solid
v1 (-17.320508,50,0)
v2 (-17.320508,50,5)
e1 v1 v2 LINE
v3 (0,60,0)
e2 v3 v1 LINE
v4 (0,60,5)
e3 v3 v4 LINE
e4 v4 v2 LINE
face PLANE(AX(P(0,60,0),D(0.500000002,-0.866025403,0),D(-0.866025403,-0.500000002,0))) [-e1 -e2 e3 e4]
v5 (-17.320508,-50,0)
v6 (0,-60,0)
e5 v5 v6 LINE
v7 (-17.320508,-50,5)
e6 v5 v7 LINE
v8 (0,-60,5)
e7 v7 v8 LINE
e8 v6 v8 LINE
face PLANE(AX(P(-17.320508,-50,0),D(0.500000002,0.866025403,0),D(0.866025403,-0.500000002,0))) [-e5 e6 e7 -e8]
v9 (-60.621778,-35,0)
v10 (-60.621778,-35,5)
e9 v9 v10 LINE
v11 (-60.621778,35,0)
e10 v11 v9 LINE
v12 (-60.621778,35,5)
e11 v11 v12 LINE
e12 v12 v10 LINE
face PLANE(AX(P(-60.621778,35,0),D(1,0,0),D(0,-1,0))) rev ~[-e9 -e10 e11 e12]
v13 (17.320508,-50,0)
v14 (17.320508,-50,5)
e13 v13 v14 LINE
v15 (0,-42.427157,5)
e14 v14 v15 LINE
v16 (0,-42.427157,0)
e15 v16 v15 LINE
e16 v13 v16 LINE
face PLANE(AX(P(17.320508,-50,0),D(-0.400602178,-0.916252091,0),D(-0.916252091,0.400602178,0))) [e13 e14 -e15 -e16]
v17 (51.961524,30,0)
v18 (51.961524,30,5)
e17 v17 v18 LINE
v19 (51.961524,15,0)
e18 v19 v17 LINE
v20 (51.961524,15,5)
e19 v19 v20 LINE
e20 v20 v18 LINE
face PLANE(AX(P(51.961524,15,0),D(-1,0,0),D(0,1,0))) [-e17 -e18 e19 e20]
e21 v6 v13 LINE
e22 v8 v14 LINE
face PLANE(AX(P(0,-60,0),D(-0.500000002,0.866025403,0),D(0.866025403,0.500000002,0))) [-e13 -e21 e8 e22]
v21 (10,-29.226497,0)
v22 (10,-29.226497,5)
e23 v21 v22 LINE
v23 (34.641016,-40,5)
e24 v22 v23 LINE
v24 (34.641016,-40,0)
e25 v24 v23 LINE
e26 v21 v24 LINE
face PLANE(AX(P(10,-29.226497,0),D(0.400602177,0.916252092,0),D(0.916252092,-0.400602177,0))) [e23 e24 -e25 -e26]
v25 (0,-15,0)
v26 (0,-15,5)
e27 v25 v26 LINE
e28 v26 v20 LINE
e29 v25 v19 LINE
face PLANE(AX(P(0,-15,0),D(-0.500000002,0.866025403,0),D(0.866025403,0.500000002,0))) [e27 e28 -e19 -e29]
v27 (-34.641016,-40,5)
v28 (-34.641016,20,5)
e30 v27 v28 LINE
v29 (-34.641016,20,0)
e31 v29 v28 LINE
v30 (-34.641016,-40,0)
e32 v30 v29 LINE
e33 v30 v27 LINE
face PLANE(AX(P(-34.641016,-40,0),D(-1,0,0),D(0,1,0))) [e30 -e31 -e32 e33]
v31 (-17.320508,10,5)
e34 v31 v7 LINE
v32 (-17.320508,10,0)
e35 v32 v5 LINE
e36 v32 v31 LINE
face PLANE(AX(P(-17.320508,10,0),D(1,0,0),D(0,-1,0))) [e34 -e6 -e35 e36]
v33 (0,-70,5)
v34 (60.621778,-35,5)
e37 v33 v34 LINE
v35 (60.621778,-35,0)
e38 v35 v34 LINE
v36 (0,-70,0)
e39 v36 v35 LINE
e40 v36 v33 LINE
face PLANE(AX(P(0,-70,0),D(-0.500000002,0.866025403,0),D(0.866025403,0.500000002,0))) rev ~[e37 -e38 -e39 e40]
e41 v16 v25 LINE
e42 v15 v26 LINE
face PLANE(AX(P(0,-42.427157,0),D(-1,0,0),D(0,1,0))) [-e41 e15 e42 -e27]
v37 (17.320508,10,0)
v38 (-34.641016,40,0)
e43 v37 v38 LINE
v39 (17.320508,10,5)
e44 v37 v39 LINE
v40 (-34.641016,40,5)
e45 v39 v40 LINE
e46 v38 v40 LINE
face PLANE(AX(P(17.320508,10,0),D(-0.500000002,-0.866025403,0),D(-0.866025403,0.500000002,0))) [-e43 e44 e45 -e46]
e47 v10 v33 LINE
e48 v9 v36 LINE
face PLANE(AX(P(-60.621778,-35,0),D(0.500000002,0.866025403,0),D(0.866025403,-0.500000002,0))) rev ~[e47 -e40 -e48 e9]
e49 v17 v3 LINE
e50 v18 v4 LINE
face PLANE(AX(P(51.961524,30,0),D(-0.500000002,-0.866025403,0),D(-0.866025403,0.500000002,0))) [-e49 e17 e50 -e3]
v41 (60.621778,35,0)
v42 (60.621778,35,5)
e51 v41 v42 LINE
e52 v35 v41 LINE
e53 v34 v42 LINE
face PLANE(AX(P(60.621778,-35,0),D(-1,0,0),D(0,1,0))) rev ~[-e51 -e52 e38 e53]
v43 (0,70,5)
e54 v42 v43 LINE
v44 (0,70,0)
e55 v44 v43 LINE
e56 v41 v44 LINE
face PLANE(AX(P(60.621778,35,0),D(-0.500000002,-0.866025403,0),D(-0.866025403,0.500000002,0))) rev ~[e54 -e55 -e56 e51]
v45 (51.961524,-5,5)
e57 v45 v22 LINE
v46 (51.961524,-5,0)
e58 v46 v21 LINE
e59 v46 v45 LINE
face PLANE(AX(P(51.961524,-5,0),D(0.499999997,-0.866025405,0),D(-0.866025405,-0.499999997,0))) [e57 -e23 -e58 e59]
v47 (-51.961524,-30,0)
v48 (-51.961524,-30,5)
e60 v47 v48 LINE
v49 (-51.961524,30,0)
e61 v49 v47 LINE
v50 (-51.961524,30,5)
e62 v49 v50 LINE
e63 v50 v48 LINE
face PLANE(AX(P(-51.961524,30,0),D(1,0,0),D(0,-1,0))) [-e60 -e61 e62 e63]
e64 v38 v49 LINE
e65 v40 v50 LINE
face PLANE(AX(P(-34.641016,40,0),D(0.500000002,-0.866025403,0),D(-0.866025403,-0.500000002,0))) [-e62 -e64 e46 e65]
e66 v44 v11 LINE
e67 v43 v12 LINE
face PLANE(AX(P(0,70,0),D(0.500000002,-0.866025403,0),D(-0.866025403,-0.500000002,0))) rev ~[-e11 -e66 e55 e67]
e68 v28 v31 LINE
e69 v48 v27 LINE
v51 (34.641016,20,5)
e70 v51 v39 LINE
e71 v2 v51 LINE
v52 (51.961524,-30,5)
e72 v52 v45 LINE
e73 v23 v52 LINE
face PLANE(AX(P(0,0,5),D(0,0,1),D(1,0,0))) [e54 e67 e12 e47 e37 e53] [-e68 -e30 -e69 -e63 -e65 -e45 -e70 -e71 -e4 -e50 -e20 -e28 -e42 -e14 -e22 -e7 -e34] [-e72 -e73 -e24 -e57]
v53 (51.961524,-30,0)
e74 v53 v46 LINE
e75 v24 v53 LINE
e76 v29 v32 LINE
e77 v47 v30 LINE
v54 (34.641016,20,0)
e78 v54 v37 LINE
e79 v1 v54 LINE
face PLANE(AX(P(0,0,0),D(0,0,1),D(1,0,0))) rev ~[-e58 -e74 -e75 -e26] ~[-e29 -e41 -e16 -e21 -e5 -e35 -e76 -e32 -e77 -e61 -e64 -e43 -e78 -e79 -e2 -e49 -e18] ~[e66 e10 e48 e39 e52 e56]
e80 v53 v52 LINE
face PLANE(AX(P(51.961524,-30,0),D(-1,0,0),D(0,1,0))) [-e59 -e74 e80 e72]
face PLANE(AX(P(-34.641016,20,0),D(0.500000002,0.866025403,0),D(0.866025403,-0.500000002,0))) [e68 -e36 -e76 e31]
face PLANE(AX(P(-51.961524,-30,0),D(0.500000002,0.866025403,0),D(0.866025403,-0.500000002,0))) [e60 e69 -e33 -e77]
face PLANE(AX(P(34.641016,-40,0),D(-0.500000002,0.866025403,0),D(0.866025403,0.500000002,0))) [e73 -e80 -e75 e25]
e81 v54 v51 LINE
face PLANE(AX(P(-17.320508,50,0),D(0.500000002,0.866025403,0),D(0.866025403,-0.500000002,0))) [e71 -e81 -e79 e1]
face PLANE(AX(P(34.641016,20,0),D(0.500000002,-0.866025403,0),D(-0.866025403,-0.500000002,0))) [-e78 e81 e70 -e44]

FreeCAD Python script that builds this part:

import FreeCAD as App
import Part
import Sketcher
from FreeCAD import Vector
Q = App.Units.Quantity


def add_polygon(sketch, points):
    """Adds a closed chain of lines whose ends are joined by coincident constraints."""
    first, n = sketch.GeometryCount, len(points)
    for a, b in zip(points, points[1:] + points[:1]):
        sketch.addGeometry(Part.LineSegment(App.Vector(*a, 0), App.Vector(*b, 0)), False)
    for i in range(n):
        sketch.addConstraint(Sketcher.Constraint("Coincident", first + i, 2, first + (i + 1) % n, 1))

doc = App.newDocument("Part")
params = doc.addObject("Spreadsheet::Sheet", "Params")
for row, (alias, value) in enumerate([
    ("sketch1_height", "70 mm"),
    ("sketch1_height2", "25 mm"),
    ("sketch1_height3", "15 mm"),
    ("sketch1_height4", "60 mm"),
    ("sketch1_length", "70 mm"),
    ("pad1_length", "5 mm"),
], start=1):
    params.set(f"A{row}", alias)
    params.set(f"B{row}", "=" + value)
    params.setAlias(f"B{row}", alias)

body = doc.addObject("PartDesign::Body", "Body")

sketch1 = body.newObject("Sketcher::SketchObject", "Sketch")
sketch1.AttachmentSupport = (doc.getObject("XY_Plane"), [""])
sketch1.MapMode = "FlatFace"
add_polygon(sketch1, [(61, 35), (0, 70), (-61, 35), (-61, -35), (0, -70), (61, -35)])
add_polygon(sketch1, [(10, -29), (52, -5), (52, -30), (35, -40)])
add_polygon(sketch1, [(35, 20), (-17, 50), (0, 60), (52, 30), (52, 15), (0, -15), (0, -42), (17, -50), (0, -60), (-17, -50), (-17, 10), (-35, 20), (-35, -40), (-52, -30), (-52, 30), (-35, 40), (17, 10)])
sketch1.addConstraint([
    Sketcher.Constraint("Vertical", 2),
    Sketcher.Constraint("Vertical", 5),
    Sketcher.Constraint("Vertical", 7),
    Sketcher.Constraint("Vertical", 13),
    Sketcher.Constraint("Vertical", 15),
    Sketcher.Constraint("Vertical", 19),
    Sketcher.Constraint("Vertical", 21),
    Sketcher.Constraint("Vertical", 23),
    Sketcher.Constraint("Symmetric", 0, 2, 3, 2, -1, 1),
    Sketcher.Constraint("Symmetric", 1, 2, 4, 2, -1, 1),
    Sketcher.Constraint("Symmetric", 10, 2, 16, 2, -1, 1),
    Sketcher.Constraint("Symmetric", 11, 2, 17, 2, -1, 1),
    Sketcher.Constraint("Symmetric", 12, 2, 22, 2, -1, 1),
    Sketcher.Constraint("Symmetric", 7, 2, 23, 2, -1, 1),
    Sketcher.Constraint("Symmetric", 8, 2, 24, 2, -1, 1),
    Sketcher.Constraint("Symmetric", 16, 2, 18, 2, -2),
    Sketcher.Constraint("Symmetric", 8, 2, 21, 2, -2),
    Sketcher.Constraint("Symmetric", 19, 2, 25, 2, -2),
    Sketcher.Constraint("Symmetric", 20, 2, 26, 2, -2),
    Sketcher.Constraint("PointOnObject", 0, 2, -2),
    Sketcher.Constraint("PointOnObject", 11, 2, -2),
    Sketcher.Constraint("PointOnObject", 14, 2, -2),
    Sketcher.Constraint("Parallel", 0, 3),
    Sketcher.Constraint("Parallel", 4, 6),
    Sketcher.Constraint("Parallel", 6, 8),
    Sketcher.Constraint("Parallel", 3, 10),
    Sketcher.Constraint("Parallel", 8, 11),
    Sketcher.Constraint("Parallel", 10, 12),
    Sketcher.Constraint("Parallel", 11, 14),
    Sketcher.Constraint("Parallel", 9, 16),
    Sketcher.Constraint("Parallel", 12, 18),
    Sketcher.Constraint("Parallel", 18, 20),
    Sketcher.Constraint("Parallel", 20, 22),
    Sketcher.Constraint("Equal", 21, 23),
    Sketcher.Constraint("Equal", 18, 20),
    Sketcher.Constraint("DistanceY", 2, 2, 2, 1, 70.0),
    Sketcher.Constraint("DistanceY", 7, 2, 7, 1, 25.0),
    Sketcher.Constraint("DistanceY", 13, 2, 13, 1, 15.0),
    Sketcher.Constraint("DistanceY", 19, 1, 19, 2, 60.0),
    Sketcher.Constraint("Angle", 0, Q("150 deg")),
    Sketcher.Constraint("Distance", 0, 70.0),
    Sketcher.Constraint("Distance", 8, 20.0),
    Sketcher.Constraint("DistanceX", -1, 1, 9, 2, 10.0),
])
sketch1.setExpression("Constraints[62]", "Params.sketch1_height")
sketch1.setExpression("Constraints[63]", "Params.sketch1_height2")
sketch1.setExpression("Constraints[64]", "Params.sketch1_height3")
sketch1.setExpression("Constraints[65]", "Params.sketch1_height4")
sketch1.setExpression("Constraints[67]", "Params.sketch1_length")
pad1 = body.newObject("PartDesign::Pad", "Pad")
pad1.Profile = sketch1
pad1.setExpression("Length", "Params.pad1_length")

doc.recompute()
